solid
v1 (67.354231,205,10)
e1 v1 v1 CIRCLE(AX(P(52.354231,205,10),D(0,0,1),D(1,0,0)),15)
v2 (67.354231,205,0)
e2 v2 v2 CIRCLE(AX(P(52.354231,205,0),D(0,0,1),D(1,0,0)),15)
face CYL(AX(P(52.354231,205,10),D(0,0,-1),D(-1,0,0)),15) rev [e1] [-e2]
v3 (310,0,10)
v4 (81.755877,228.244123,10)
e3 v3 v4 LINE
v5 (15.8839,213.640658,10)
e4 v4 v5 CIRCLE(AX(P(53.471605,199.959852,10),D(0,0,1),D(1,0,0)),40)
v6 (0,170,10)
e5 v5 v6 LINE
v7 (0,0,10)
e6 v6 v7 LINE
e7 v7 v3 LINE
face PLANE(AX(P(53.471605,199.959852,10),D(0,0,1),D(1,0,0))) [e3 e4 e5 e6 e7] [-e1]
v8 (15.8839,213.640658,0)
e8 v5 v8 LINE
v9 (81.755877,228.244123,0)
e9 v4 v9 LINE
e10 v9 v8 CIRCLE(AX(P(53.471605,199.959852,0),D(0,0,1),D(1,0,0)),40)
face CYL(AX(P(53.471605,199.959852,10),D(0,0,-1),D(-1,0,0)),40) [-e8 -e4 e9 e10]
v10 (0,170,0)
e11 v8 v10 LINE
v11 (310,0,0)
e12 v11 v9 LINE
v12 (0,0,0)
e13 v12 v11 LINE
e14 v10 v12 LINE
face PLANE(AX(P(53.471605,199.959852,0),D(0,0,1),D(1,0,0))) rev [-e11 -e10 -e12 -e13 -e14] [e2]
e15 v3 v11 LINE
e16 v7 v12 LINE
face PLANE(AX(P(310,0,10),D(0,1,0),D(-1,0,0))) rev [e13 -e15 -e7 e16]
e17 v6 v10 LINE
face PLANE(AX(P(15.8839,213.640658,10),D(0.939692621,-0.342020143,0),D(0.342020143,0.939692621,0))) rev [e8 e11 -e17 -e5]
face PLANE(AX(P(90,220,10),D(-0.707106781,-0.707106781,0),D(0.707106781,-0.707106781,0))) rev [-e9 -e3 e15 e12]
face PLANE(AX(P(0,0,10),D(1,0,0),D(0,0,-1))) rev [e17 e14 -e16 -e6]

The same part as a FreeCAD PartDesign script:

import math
import FreeCAD as App
import Part
import Sketcher
from FreeCAD import Vector
Q = App.Units.Quantity

doc = App.newDocument("Part")
body = doc.addObject("PartDesign::Body", "Body")

sketch1 = body.newObject("Sketcher::SketchObject", "Sketch")
sketch1.AttachmentSupport = (doc.getObject("XY_Plane"), [""])
sketch1.MapMode = "FlatFace"
sketch1.addGeometry([
    Part.LineSegment(Vector(0, 170, 0), Vector(0, 0, 0)),
    Part.LineSegment(Vector(0, 0, 0), Vector(310, 0, 0)),
    Part.LineSegment(Vector(310, 0, 0), Vector(82, 228, 0)),
    Part.ArcOfCircle(Part.Circle(Vector(53, 200, 0), Vector(0, 0, 1), 40), math.radians(45), math.radians(160)),
    Part.LineSegment(Vector(16, 214, 0), Vector(0, 170, 0)),
    Part.Circle(Vector(52, 205, 0), Vector(0, 0, 1), 15),
], False)
sketch1.addConstraint([
    Sketcher.Constraint("Coincident", 0, 2, 1, 1),
    Sketcher.Constraint("Coincident", 1, 2, 2, 1),
    Sketcher.Constraint("Tangent", 2, 2, 3, 1),
    Sketcher.Constraint("Tangent", 3, 2, 4, 1),
    Sketcher.Constraint("Coincident", 4, 2, 0, 1),
    Sketcher.Constraint("Vertical", 0),
    Sketcher.Constraint("Horizontal", 1),
    Sketcher.Constraint("Coincident", 0, 2, -1, 1),
    Sketcher.Constraint("Diameter", 5, Q("30 mm")),
    Sketcher.Constraint("Radius", 3, Q("40 mm")),
    Sketcher.Constraint("DistanceX", 1, 1, 1, 2, Q("310 mm")),
    Sketcher.Constraint("DistanceY", 0, 2, 0, 1, Q("170 mm")),
    Sketcher.Constraint("Angle", 2, Q("135 deg")),
    Sketcher.Constraint("Angle", 4, Q("-110 deg")),
    Sketcher.Constraint("DistanceY", -1, 1, 5, 3, Q("205 mm")),
    Sketcher.Constraint("DistanceX", -1, 1, 5, 3, Q("52.354231 mm")),
])
pad1 = body.newObject("PartDesign::Pad", "Pad")
pad1.Profile = sketch1
pad1.Length = 10

doc.recompute()
